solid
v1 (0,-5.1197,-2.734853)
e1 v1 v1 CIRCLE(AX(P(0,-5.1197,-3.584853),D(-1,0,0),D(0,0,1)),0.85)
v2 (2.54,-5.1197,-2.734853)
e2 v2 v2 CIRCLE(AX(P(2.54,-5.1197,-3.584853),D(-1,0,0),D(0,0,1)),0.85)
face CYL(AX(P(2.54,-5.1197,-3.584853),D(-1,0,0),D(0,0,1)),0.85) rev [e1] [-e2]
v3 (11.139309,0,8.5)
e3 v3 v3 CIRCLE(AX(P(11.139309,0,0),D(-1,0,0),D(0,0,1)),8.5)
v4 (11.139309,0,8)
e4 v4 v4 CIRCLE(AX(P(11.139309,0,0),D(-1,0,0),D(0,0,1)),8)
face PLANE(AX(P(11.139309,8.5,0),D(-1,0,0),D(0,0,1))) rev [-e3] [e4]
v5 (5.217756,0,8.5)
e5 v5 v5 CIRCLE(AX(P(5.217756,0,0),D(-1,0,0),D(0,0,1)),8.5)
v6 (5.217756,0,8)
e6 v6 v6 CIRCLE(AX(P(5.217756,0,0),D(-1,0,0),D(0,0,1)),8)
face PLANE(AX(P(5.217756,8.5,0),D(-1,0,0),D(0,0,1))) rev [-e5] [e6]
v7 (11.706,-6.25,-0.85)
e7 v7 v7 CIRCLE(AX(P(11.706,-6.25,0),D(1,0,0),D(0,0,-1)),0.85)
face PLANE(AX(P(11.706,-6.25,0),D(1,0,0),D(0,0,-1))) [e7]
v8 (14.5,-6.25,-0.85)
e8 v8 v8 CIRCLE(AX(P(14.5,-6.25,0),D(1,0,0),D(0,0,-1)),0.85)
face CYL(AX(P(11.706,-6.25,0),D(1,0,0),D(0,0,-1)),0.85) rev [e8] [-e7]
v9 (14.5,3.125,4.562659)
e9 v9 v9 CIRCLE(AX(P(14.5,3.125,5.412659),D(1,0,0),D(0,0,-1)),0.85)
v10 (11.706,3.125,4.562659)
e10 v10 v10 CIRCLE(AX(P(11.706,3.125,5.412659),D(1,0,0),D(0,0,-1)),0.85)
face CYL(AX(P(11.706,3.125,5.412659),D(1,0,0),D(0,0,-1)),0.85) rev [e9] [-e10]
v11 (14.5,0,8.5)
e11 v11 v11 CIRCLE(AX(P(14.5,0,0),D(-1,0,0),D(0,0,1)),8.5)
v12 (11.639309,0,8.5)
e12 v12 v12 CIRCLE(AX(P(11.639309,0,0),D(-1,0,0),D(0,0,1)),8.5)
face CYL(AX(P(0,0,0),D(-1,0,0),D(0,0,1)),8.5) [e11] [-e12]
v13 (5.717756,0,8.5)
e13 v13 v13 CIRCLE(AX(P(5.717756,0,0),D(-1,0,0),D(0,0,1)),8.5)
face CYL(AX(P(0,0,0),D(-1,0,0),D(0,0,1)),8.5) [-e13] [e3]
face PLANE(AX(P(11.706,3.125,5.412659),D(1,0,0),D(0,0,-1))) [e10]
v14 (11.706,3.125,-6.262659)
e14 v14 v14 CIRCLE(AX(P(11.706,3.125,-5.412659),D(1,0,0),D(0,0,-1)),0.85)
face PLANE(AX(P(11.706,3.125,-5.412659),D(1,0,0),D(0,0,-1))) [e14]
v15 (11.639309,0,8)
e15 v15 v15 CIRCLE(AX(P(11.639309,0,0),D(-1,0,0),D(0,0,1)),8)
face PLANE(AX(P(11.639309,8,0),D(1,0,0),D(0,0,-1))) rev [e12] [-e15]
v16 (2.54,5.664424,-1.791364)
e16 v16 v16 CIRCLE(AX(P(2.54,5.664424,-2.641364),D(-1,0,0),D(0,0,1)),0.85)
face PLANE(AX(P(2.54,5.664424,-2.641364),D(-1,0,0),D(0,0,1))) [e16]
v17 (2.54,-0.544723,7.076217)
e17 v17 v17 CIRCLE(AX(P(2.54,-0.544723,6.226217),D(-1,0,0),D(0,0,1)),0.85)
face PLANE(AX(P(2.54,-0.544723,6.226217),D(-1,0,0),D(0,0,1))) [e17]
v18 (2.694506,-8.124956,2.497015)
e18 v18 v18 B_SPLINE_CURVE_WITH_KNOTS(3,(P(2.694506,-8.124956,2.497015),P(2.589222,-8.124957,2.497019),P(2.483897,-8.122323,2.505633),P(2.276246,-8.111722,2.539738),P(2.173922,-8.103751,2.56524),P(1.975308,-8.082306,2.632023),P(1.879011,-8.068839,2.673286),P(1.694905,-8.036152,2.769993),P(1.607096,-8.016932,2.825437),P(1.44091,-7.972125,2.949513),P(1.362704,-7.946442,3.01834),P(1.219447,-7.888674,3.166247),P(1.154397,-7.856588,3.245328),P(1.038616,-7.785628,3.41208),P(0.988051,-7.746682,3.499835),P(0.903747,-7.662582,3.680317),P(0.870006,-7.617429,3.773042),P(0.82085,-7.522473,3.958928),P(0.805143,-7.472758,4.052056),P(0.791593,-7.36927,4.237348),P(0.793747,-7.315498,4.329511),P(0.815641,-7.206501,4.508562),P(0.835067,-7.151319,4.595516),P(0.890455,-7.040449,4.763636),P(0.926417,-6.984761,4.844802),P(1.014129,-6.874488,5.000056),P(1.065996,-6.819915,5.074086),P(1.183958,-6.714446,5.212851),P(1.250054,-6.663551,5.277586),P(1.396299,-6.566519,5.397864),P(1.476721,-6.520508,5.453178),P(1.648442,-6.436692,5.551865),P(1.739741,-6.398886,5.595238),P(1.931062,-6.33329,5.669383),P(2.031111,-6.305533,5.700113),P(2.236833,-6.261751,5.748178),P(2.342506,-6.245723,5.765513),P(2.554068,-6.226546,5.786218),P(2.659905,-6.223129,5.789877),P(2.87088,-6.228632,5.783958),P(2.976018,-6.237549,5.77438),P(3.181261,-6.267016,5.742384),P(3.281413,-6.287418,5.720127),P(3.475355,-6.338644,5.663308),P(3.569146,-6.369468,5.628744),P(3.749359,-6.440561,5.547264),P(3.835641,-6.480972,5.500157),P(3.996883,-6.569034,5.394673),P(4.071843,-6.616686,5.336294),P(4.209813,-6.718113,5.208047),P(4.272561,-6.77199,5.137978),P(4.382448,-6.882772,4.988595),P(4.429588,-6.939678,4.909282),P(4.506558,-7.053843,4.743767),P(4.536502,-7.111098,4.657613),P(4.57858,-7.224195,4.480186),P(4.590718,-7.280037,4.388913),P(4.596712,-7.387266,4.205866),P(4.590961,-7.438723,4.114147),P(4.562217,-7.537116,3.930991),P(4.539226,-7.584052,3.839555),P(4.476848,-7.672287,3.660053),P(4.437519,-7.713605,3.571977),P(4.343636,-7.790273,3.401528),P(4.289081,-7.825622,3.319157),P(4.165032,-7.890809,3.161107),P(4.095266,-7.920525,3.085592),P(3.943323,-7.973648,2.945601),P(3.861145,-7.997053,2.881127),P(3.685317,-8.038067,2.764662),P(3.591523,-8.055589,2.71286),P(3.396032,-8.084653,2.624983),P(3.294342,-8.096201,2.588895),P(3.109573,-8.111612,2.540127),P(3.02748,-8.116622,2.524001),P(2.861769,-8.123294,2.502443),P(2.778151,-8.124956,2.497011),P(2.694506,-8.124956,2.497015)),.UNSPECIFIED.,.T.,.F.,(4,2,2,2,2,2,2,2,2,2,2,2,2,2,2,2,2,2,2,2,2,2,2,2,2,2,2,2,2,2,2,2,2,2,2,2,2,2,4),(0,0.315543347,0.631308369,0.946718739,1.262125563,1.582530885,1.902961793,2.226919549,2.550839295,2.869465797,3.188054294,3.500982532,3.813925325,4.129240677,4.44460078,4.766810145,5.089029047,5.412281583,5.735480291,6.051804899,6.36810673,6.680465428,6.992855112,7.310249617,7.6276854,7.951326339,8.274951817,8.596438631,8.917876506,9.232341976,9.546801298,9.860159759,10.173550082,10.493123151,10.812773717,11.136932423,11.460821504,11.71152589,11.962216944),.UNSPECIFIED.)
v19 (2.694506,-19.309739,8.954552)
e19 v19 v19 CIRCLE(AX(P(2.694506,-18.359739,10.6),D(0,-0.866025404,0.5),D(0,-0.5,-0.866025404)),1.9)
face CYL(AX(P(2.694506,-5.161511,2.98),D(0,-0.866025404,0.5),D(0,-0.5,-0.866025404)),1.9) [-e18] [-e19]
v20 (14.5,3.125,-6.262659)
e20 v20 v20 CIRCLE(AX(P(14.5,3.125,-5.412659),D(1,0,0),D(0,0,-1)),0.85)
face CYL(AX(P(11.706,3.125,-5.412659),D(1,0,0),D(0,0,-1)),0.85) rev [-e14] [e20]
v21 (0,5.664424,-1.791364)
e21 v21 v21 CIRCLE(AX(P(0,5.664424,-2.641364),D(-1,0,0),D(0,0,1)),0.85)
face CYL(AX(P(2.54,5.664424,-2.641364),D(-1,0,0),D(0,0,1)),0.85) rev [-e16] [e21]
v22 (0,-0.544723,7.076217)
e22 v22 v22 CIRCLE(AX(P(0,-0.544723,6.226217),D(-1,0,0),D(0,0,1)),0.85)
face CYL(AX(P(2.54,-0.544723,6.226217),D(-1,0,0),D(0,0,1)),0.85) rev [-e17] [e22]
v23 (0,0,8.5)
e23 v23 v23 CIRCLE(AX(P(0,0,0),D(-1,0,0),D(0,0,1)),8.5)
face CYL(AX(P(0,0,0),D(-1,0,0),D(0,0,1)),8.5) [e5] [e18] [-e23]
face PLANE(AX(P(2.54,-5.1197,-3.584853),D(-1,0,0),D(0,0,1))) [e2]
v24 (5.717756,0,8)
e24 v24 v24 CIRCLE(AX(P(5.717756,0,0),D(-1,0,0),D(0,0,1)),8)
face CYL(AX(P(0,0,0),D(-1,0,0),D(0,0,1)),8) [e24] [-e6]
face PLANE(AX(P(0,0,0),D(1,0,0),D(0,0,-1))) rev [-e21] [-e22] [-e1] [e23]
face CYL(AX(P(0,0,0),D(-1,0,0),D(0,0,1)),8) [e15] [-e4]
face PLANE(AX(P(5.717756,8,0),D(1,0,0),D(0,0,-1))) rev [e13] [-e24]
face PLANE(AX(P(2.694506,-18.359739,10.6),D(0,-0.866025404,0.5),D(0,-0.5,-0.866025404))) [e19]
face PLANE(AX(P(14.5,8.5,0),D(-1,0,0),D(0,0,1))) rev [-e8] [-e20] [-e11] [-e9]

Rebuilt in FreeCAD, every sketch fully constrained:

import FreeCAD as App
import Part
import Sketcher

V = App.Vector


def add_polygon(sketch, points):
    """Adds a closed chain of lines whose ends are joined by coincident constraints."""
    first, n = sketch.GeometryCount, len(points)
    for a, b in zip(points, points[1:] + points[:1]):
        sketch.addGeometry(Part.LineSegment(App.Vector(*a, 0), App.Vector(*b, 0)), False)
    for i in range(n):
        sketch.addConstraint(Sketcher.Constraint("Coincident", first + i, 2, first + (i + 1) % n, 1))

doc = App.newDocument("Part")
body = doc.addObject("PartDesign::Body", "Body")

sketch1 = doc.addObject("Sketcher::SketchObject", "Sketch")
body.addObject(sketch1)
sketch1.AttachmentSupport = (doc.XY_Plane, [""])
sketch1.MapMode = "FlatFace"
add_polygon(sketch1, [(0, 8.5), (0, 0), (14.5, 0), (14.5, 8.5), (11.639309, 8.5), (11.639309, 8), (11.139309, 8), (11.139309, 8.5), (5.717756, 8.5), (5.717756, 8), (5.217756, 8), (5.217756, 8.5)])
sketch1.addConstraint([
    Sketcher.Constraint("Vertical", 0),
    Sketcher.Constraint("Horizontal", 1),
    Sketcher.Constraint("Vertical", 2),
    Sketcher.Constraint("Horizontal", 3),
    Sketcher.Constraint("Vertical", 4),
    Sketcher.Constraint("Horizontal", 5),
    Sketcher.Constraint("Vertical", 6),
    Sketcher.Constraint("Horizontal", 7),
    Sketcher.Constraint("Vertical", 8),
    Sketcher.Constraint("Horizontal", 9),
    Sketcher.Constraint("Vertical", 10),
    Sketcher.Constraint("Horizontal", 11),
    Sketcher.Constraint("Coincident", 0, 2, -1, 1),
    Sketcher.Constraint("Horizontal", 3, 2, 6, 2),
    Sketcher.Constraint("Horizontal", 5, 2, 8, 2),
    Sketcher.Constraint("Horizontal", 7, 2, 10, 2),
    Sketcher.Constraint("Equal", 5, 9),
    Sketcher.Constraint("Equal", 9, 4),
    Sketcher.Constraint("DistanceX", 1, 1, 1, 2, 14.5),
    Sketcher.Constraint("DistanceX", 5, 2, 5, 1, 0.5),
    Sketcher.Constraint("DistanceY", 0, 2, 0, 1, 8.5),
    Sketcher.Constraint("DistanceX", 3, 2, 3, 1, 2.860691),
    Sketcher.Constraint("DistanceX", 7, 2, 7, 1, 5.421553),
])
revolution = doc.addObject("PartDesign::Revolution", "Revolution")
body.addObject(revolution)
revolution.Profile = sketch1
revolution.ReferenceAxis = (sketch1, ["H_Axis"])
revolution.Angle = 360

sketch2 = doc.addObject("Sketcher::SketchObject", "Sketch001")
body.addObject(sketch2)
sketch2.AttachmentSupport = (doc.YZ_Plane, [""])
sketch2.MapMode = "FlatFace"
sketch2.addGeometry([
    Part.Circle(V(5.664424, -2.641364, 0), V(0, 0, 1), 0.85),
    Part.Circle(V(-0.544723, 6.226217, 0), V(0, 0, 1), 0.85),
    Part.Circle(V(-5.1197, -3.584853, 0), V(0, 0, 1), 0.85),
], False)
sketch2.addConstraint([
    Sketcher.Constraint("Equal", 0, 1),
    Sketcher.Constraint("Equal", 1, 2),
    Sketcher.Constraint("Diameter", 0, 1.7),
    Sketcher.Constraint("DistanceX", 2, 3, -1, 1, 5.1197),
    Sketcher.Constraint("DistanceY", 0, 3, 1, 3, 8.867581),
    Sketcher.Constraint("DistanceY", 2, 3, 1, 3, 9.81107),
    Sketcher.Constraint("DistanceX", -1, 1, 0, 3, 5.664424),
    Sketcher.Constraint("DistanceY", 0, 3, -1, 1, 2.641364),
    Sketcher.Constraint("DistanceX", 1, 3, -1, 1, 0.544723),
])
pocket1 = doc.addObject("PartDesign::Pocket", "Pocket")
body.addObject(pocket1)
pocket1.Profile = sketch2
pocket1.Length = 2.54
pocket1.Reversed = True

sketch3 = doc.addObject("Sketcher::SketchObject", "Sketch002")
body.addObject(sketch3)
sketch3.Placement = App.Placement(V(0, -7.361216, 4.25), App.Rotation(V(1, 0, 0), V(0, 0.5, 0.866025404), V(0, -0.866025404, 0.5), "ZXY"))
sketch3.addGeometry(Part.Circle(V(2.694506, 0, 0), V(0, 0, 1), 1.9), False)
sketch3.addConstraint([
    Sketcher.Constraint("PointOnObject", 0, 3, -1),
    Sketcher.Constraint("Diameter", 0, 3.8),
    Sketcher.Constraint("DistanceX", -1, 1, 0, 3, 2.694506),
])
pad1 = doc.addObject("PartDesign::Pad", "Pad")
body.addObject(pad1)
pad1.Profile = sketch3
pad1.Type = "TwoLengths"
pad1.Length = 12.7
pad1.Length2 = 2.54

sketch4 = doc.addObject("Sketcher::SketchObject", "Sketch003")
body.addObject(sketch4)
sketch4.AttachmentSupport = (doc.YZ_Plane, [""])
sketch4.MapMode = "FlatFace"
sketch4.AttachmentOffset = App.Placement(V(0, 0, 14.5), App.Rotation())
sketch4.addGeometry([
    Part.Circle(V(-6.25, 0, 0), V(0, 0, 1), 0.85),
    Part.Circle(V(3.125, 5.412659, 0), V(0, 0, 1), 0.85),
    Part.Circle(V(3.125, -5.412659, 0), V(0, 0, 1), 0.85),
], False)
sketch4.addConstraint([
    Sketcher.Constraint("Equal", 0, 1),
    Sketcher.Constraint("Equal", 1, 2),
    Sketcher.Constraint("Symmetric", 1, 3, 2, 3, -1),
    Sketcher.Constraint("PointOnObject", 0, 3, -1),
    Sketcher.Constraint("Diameter", 0, 1.7),
    Sketcher.Constraint("DistanceX", 0, 3, -1, 1, 6.25),
    Sketcher.Constraint("DistanceX", -1, 1, 1, 3, 3.125),
    Sketcher.Constraint("DistanceY", -1, 1, 1, 3, 5.412659),
])
pocket2 = doc.addObject("PartDesign::Pocket", "Pocket001")
body.addObject(pocket2)
pocket2.Profile = sketch4
pocket2.Length = 2.794

doc.recompute()
